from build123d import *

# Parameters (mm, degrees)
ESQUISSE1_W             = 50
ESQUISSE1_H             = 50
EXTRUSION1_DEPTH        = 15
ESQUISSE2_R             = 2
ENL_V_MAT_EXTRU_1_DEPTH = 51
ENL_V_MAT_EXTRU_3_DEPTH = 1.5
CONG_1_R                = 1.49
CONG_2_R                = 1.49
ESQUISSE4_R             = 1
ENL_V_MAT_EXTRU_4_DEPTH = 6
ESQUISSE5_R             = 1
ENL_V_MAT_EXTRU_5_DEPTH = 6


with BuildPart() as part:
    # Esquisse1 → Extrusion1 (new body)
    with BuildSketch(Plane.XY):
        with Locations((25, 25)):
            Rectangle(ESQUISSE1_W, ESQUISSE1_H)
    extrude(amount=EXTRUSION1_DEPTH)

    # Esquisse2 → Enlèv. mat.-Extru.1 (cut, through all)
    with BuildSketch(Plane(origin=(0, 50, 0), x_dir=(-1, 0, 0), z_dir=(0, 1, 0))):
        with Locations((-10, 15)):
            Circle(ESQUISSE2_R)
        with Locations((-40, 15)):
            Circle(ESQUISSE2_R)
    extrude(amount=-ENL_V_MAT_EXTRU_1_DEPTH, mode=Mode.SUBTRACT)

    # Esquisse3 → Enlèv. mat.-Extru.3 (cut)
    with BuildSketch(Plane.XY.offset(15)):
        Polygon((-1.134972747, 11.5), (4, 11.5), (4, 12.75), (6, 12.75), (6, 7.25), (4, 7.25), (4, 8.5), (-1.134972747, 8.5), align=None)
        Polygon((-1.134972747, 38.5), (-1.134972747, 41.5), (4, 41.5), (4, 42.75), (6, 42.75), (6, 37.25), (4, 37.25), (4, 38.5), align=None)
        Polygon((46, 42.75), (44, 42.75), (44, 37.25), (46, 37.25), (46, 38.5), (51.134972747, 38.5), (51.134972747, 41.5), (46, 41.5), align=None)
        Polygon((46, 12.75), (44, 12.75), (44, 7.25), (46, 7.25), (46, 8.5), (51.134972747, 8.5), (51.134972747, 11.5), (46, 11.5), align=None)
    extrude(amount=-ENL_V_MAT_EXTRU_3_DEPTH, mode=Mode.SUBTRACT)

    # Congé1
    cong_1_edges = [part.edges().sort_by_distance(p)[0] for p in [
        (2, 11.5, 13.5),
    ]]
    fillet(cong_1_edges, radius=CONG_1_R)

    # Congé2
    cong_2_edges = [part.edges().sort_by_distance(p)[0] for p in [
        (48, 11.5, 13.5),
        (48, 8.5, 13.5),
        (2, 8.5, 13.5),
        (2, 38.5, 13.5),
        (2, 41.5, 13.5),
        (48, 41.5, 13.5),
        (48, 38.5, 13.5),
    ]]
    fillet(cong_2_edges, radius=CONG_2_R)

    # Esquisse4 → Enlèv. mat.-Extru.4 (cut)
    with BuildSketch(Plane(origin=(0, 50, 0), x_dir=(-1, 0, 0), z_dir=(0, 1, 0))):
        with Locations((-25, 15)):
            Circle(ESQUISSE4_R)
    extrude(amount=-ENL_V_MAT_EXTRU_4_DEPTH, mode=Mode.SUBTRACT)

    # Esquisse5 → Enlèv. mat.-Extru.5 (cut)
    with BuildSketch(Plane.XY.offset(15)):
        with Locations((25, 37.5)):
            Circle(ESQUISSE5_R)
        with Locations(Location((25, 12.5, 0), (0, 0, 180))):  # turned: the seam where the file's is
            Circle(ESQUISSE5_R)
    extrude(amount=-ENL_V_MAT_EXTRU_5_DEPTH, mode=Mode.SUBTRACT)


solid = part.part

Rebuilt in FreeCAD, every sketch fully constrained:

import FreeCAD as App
import Part
import Sketcher

V = App.Vector
Q = App.Units.Quantity


def edges_at(feature, points):
    """Names of the edges that pass closest to the given points."""
    edges = feature.Shape.Edges
    near = lambda p: min(range(len(edges)), key=lambda i: edges[i].distToShape(Part.Vertex(*p))[0])
    return sorted({f"Edge{near(p) + 1}" for p in points})


def add_polygon(sketch, points):
    """Adds a closed chain of lines whose ends are joined by coincident constraints."""
    first, n = sketch.GeometryCount, len(points)
    for a, b in zip(points, points[1:] + points[:1]):
        sketch.addGeometry(Part.LineSegment(App.Vector(*a, 0), App.Vector(*b, 0)), False)
    for i in range(n):
        sketch.addConstraint(Sketcher.Constraint("Coincident", first + i, 2, first + (i + 1) % n, 1))

doc = App.newDocument("Part")
body = doc.addObject("PartDesign::Body", "Body")

sketch1 = doc.addObject("Sketcher::SketchObject", "Sketch")
body.addObject(sketch1)
sketch1.AttachmentSupport = (doc.XY_Plane, [""])
sketch1.MapMode = "FlatFace"
add_polygon(sketch1, [(0, 50), (0, 0), (50, 0), (50, 50)])
sketch1.addConstraint([
    Sketcher.Constraint("Vertical", 0),
    Sketcher.Constraint("Horizontal", 1),
    Sketcher.Constraint("Vertical", 2),
    Sketcher.Constraint("Horizontal", 3),
    Sketcher.Constraint("Coincident", 0, 2, -1, 1),
    Sketcher.Constraint("Equal", 3, 0),
    Sketcher.Constraint("DistanceX", 1, 1, 1, 2, Q("50 mm")),
])
pad1 = doc.addObject("PartDesign::Pad", "Pad")
body.addObject(pad1)
pad1.Profile = sketch1
pad1.Length = 15

sketch2 = doc.addObject("Sketcher::SketchObject", "Sketch001")
body.addObject(sketch2)
sketch2.AttachmentSupport = (doc.XZ_Plane, [""])
sketch2.MapMode = "FlatFace"
sketch2.AttachmentOffset = App.Placement(V(0, 0, -50), App.Rotation())
sketch2.addGeometry([
    Part.Circle(V(10, 15, 0), V(0, 0, 1), 2),
    Part.Circle(V(40, 15, 0), V(0, 0, 1), 2),
], False)
sketch2.addConstraint([
    Sketcher.Constraint("Equal", 0, 1),
    Sketcher.Constraint("Horizontal", 0, 3, 1, 3),
    Sketcher.Constraint("Diameter", 0, Q("4 mm")),
    Sketcher.Constraint("DistanceX", -1, 1, 0, 3, Q("10 mm")),
    Sketcher.Constraint("DistanceY", -1, 1, 0, 3, Q("15 mm")),
    Sketcher.Constraint("DistanceX", -1, 1, 1, 3, Q("40 mm")),
])
pocket1 = doc.addObject("PartDesign::Pocket", "Pocket")
body.addObject(pocket1)
pocket1.Profile = sketch2
pocket1.Type = "ThroughAll"
pocket1.Reversed = True

sketch3 = doc.addObject("Sketcher::SketchObject", "Sketch002")
body.addObject(sketch3)
sketch3.AttachmentSupport = (doc.XY_Plane, [""])
sketch3.MapMode = "FlatFace"
sketch3.AttachmentOffset = App.Placement(V(0, 0, 15), App.Rotation())
add_polygon(sketch3, [(4, 11.5), (-1.134973, 11.5), (-1.134973, 8.5), (4, 8.5), (4, 7.25), (6, 7.25), (6, 12.75), (4, 12.75)])
add_polygon(sketch3, [(-1.134973, 41.5), (-1.134973, 38.5), (4, 38.5), (4, 37.25), (6, 37.25), (6, 42.75), (4, 42.75), (4, 41.5)])
add_polygon(sketch3, [(46, 42.75), (44, 42.75), (44, 37.25), (46, 37.25), (46, 38.5), (51.134973, 38.5), (51.134973, 41.5), (46, 41.5)])
add_polygon(sketch3, [(46, 12.75), (44, 12.75), (44, 7.25), (46, 7.25), (46, 8.5), (51.134973, 8.5), (51.134973, 11.5), (46, 11.5)])
sketch3.addConstraint([
    Sketcher.Constraint("Horizontal", 0),
    Sketcher.Constraint("Vertical", 1),
    Sketcher.Constraint("Horizontal", 2),
    Sketcher.Constraint("Vertical", 3),
    Sketcher.Constraint("Horizontal", 4),
    Sketcher.Constraint("Vertical", 5),
    Sketcher.Constraint("Horizontal", 6),
    Sketcher.Constraint("Vertical", 7),
    Sketcher.Constraint("Vertical", 8),
    Sketcher.Constraint("Horizontal", 9),
    Sketcher.Constraint("Vertical", 10),
    Sketcher.Constraint("Horizontal", 11),
    Sketcher.Constraint("Vertical", 12),
    Sketcher.Constraint("Horizontal", 13),
    Sketcher.Constraint("Vertical", 14),
    Sketcher.Constraint("Horizontal", 15),
    Sketcher.Constraint("Horizontal", 16),
    Sketcher.Constraint("Vertical", 17),
    Sketcher.Constraint("Horizontal", 18),
    Sketcher.Constraint("Vertical", 19),
    Sketcher.Constraint("Horizontal", 20),
    Sketcher.Constraint("Vertical", 21),
    Sketcher.Constraint("Horizontal", 22),
    Sketcher.Constraint("Vertical", 23),
    Sketcher.Constraint("Horizontal", 24),
    Sketcher.Constraint("Vertical", 25),
    Sketcher.Constraint("Horizontal", 26),
    Sketcher.Constraint("Vertical", 27),
    Sketcher.Constraint("Horizontal", 28),
    Sketcher.Constraint("Vertical", 29),
    Sketcher.Constraint("Horizontal", 30),
    Sketcher.Constraint("Vertical", 31),
    Sketcher.Constraint("Horizontal", 13, 2, 16, 2),
    Sketcher.Constraint("Horizontal", 11, 2, 17, 2),
    Sketcher.Constraint("Horizontal", 9, 2, 19, 2),
    Sketcher.Constraint("Horizontal", 15, 2, 21, 2),
    Sketcher.Constraint("Horizontal", 6, 2, 24, 2),
    Sketcher.Constraint("Horizontal", 4, 2, 25, 2),
    Sketcher.Constraint("Horizontal", 2, 2, 27, 2),
    Sketcher.Constraint("Horizontal", 7, 2, 29, 2),
    Sketcher.Constraint("Vertical", 3, 2, 6, 2),
    Sketcher.Constraint("Vertical", 1, 2, 8, 2),
    Sketcher.Constraint("Vertical", 7, 2, 9, 2),
    Sketcher.Constraint("Vertical", 5, 2, 11, 2),
    Sketcher.Constraint("Vertical", 10, 2, 13, 2),
    Sketcher.Constraint("Vertical", 19, 2, 22, 2),
    Sketcher.Constraint("Vertical", 17, 2, 24, 2),
    Sketcher.Constraint("Vertical", 23, 2, 26, 2),
    Sketcher.Constraint("Vertical", 21, 2, 28, 2),
    Sketcher.Constraint("Vertical", 27, 2, 30, 2),
    Sketcher.Constraint("Equal", 13, 16),
    Sketcher.Constraint("Equal", 15, 20),
    Sketcher.Constraint("Equal", 3, 7),
    Sketcher.Constraint("Equal", 1, 8),
    Sketcher.Constraint("Equal", 7, 10),
    Sketcher.Constraint("Equal", 5, 12),
    Sketcher.Constraint("DistanceX", 4, 1, 4, 2, Q("2 mm")),
    Sketcher.Constraint("DistanceY", 1, 2, 1, 1, Q("3 mm")),
    Sketcher.Constraint("DistanceY", 5, 1, 5, 2, Q("5.5 mm")),
    Sketcher.Constraint("DistanceX", -1, 1, 2, 2, Q("4 mm")),
    Sketcher.Constraint("DistanceX", -1, 1, 16, 2, Q("44 mm")),
    Sketcher.Constraint("DistanceY", 0, 2, 8, 2, Q("27 mm")),
    Sketcher.Constraint("DistanceY", -1, 1, 0, 2, Q("11.5 mm")),
    Sketcher.Constraint("DistanceX", 0, 2, 0, 1, Q("5.134973 mm")),
])
pocket2 = doc.addObject("PartDesign::Pocket", "Pocket001")
body.addObject(pocket2)
pocket2.Profile = sketch3
pocket2.Length = 1.5
doc.recompute()

fillet = doc.addObject("PartDesign::Fillet", "Fillet")
body.addObject(fillet)
fillet.Base = (pocket2, edges_at(pocket2, [(2, 11.5, 13.5)]))
fillet.Radius = 1.49
doc.recompute()

fillet2 = doc.addObject("PartDesign::Fillet", "Fillet001")
body.addObject(fillet2)
fillet2.Base = (fillet, edges_at(fillet, [
    (48, 11.5, 13.5),
    (48, 8.5, 13.5),
    (2, 8.5, 13.5),
    (2, 38.5, 13.5),
    (2, 41.5, 13.5),
    (48, 41.5, 13.5),
    (48, 38.5, 13.5),
]))
fillet2.Radius = 1.49

sketch4 = doc.addObject("Sketcher::SketchObject", "Sketch003")
body.addObject(sketch4)
sketch4.AttachmentSupport = (doc.XZ_Plane, [""])
sketch4.MapMode = "FlatFace"
sketch4.AttachmentOffset = App.Placement(V(0, 0, -50), App.Rotation())
sketch4.addGeometry(Part.Circle(V(25, 15, 0), V(0, 0, 1), 1), False)
sketch4.addConstraint([
    Sketcher.Constraint("Diameter", 0, Q("2 mm")),
    Sketcher.Constraint("DistanceX", -1, 1, 0, 3, Q("25 mm")),
    Sketcher.Constraint("DistanceY", -1, 1, 0, 3, Q("15 mm")),
])
pocket3 = doc.addObject("PartDesign::Pocket", "Pocket002")
body.addObject(pocket3)
pocket3.Profile = sketch4
pocket3.Length = 6
pocket3.Reversed = True

sketch5 = doc.addObject("Sketcher::SketchObject", "Sketch004")
body.addObject(sketch5)
sketch5.AttachmentSupport = (doc.XY_Plane, [""])
sketch5.MapMode = "FlatFace"
sketch5.AttachmentOffset = App.Placement(V(0, 0, 15), App.Rotation())
sketch5.addGeometry([
    Part.Circle(V(25, 37.5, 0), V(0, 0, 1), 1),
    Part.Circle(V(25, 12.5, 0), V(0, 0, 1), 1),
], False)
sketch5.addConstraint([
    Sketcher.Constraint("Equal", 0, 1),
    Sketcher.Constraint("Vertical", 0, 3, 1, 3),
    Sketcher.Constraint("Diameter", 0, Q("2 mm")),
    Sketcher.Constraint("DistanceX", -1, 1, 0, 3, Q("25 mm")),
    Sketcher.Constraint("DistanceY", 1, 3, 0, 3, Q("25 mm")),
    Sketcher.Constraint("DistanceY", -1, 1, 0, 3, Q("37.5 mm")),
])
pocket4 = doc.addObject("PartDesign::Pocket", "Pocket003")
body.addObject(pocket4)
pocket4.Profile = sketch5
pocket4.Length = 6

doc.recompute()
